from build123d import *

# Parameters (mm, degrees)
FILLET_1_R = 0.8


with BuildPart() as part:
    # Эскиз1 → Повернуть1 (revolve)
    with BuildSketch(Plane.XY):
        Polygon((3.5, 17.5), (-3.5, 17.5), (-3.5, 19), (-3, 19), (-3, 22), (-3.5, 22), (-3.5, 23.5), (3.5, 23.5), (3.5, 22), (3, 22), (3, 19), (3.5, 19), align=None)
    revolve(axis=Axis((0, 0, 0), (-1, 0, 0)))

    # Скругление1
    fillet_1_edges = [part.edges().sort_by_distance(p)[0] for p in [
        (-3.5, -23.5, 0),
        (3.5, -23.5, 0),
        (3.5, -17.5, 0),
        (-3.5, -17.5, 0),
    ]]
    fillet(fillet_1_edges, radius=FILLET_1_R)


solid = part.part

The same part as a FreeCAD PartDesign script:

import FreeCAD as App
import Part
import Sketcher
from FreeCAD import Vector
Q = App.Units.Quantity


def edges_at(feature, points):
    """Names of the edges that pass closest to the given points."""
    edges = feature.Shape.Edges
    near = lambda p: min(range(len(edges)), key=lambda i: edges[i].distToShape(Part.Vertex(*p))[0])
    return sorted({f"Edge{near(p) + 1}" for p in points})

doc = App.newDocument("Part")
body = doc.addObject("PartDesign::Body", "Body")

# Sketch on XY plane
sketch1 = doc.addObject("Sketcher::SketchObject", "Sketch")
body.addObject(sketch1)
sketch1.AttachmentSupport = (doc.XY_Plane, [""])
sketch1.MapMode = "FlatFace"
sketch1.addGeometry(Part.LineSegment(Vector(-3.5, 17.5, 0), Vector(3.5, 17.5, 0)), False)
sketch1.addGeometry(Part.LineSegment(Vector(3.5, 17.5, 0), Vector(3.5, 19, 0)), False)
sketch1.addGeometry(Part.LineSegment(Vector(3.5, 19, 0), Vector(3, 19, 0)), False)
sketch1.addGeometry(Part.LineSegment(Vector(3, 19, 0), Vector(3, 22, 0)), False)
sketch1.addGeometry(Part.LineSegment(Vector(3, 22, 0), Vector(3.5, 22, 0)), False)
sketch1.addGeometry(Part.LineSegment(Vector(3.5, 22, 0), Vector(3.5, 23.5, 0)), False)
sketch1.addGeometry(Part.LineSegment(Vector(3.5, 23.5, 0), Vector(-3.5, 23.5, 0)), False)
sketch1.addGeometry(Part.LineSegment(Vector(-3.5, 23.5, 0), Vector(-3.5, 22, 0)), False)
sketch1.addGeometry(Part.LineSegment(Vector(-3.5, 22, 0), Vector(-3, 22, 0)), False)
sketch1.addGeometry(Part.LineSegment(Vector(-3, 22, 0), Vector(-3, 19, 0)), False)
sketch1.addGeometry(Part.LineSegment(Vector(-3, 19, 0), Vector(-3.5, 19, 0)), False)
sketch1.addGeometry(Part.LineSegment(Vector(-3.5, 19, 0), Vector(-3.5, 17.5, 0)), False)
sketch1.addConstraint(Sketcher.Constraint("Coincident", 0, 2, 1, 1))
sketch1.addConstraint(Sketcher.Constraint("Coincident", 1, 2, 2, 1))
sketch1.addConstraint(Sketcher.Constraint("Coincident", 2, 2, 3, 1))
sketch1.addConstraint(Sketcher.Constraint("Coincident", 3, 2, 4, 1))
sketch1.addConstraint(Sketcher.Constraint("Coincident", 4, 2, 5, 1))
sketch1.addConstraint(Sketcher.Constraint("Coincident", 5, 2, 6, 1))
sketch1.addConstraint(Sketcher.Constraint("Coincident", 6, 2, 7, 1))
sketch1.addConstraint(Sketcher.Constraint("Coincident", 7, 2, 8, 1))
sketch1.addConstraint(Sketcher.Constraint("Coincident", 8, 2, 9, 1))
sketch1.addConstraint(Sketcher.Constraint("Coincident", 9, 2, 10, 1))
sketch1.addConstraint(Sketcher.Constraint("Coincident", 10, 2, 11, 1))
sketch1.addConstraint(Sketcher.Constraint("Coincident", 11, 2, 0, 1))
sketch1.addConstraint(Sketcher.Constraint("Horizontal", 0))
sketch1.addConstraint(Sketcher.Constraint("Vertical", 1))
sketch1.addConstraint(Sketcher.Constraint("Horizontal", 2))
sketch1.addConstraint(Sketcher.Constraint("Vertical", 3))
sketch1.addConstraint(Sketcher.Constraint("Horizontal", 4))
sketch1.addConstraint(Sketcher.Constraint("Vertical", 5))
sketch1.addConstraint(Sketcher.Constraint("Horizontal", 6))
sketch1.addConstraint(Sketcher.Constraint("Vertical", 7))
sketch1.addConstraint(Sketcher.Constraint("Horizontal", 8))
sketch1.addConstraint(Sketcher.Constraint("Vertical", 9))
sketch1.addConstraint(Sketcher.Constraint("Horizontal", 10))
sketch1.addConstraint(Sketcher.Constraint("Vertical", 11))
sketch1.addConstraint(Sketcher.Constraint("Symmetric", 4, 2, 7, 2, -2))
sketch1.addConstraint(Sketcher.Constraint("Symmetric", 2, 2, 9, 2, -2))
sketch1.addConstraint(Sketcher.Constraint("Vertical", 1, 2, 4, 2))
sketch1.addConstraint(Sketcher.Constraint("Vertical", 7, 2, 10, 2))
sketch1.addConstraint(Sketcher.Constraint("Equal", 1, 5))
sketch1.addConstraint(Sketcher.Constraint("DistanceX", 0, 1, 0, 2, Q("7 mm")))
sketch1.addConstraint(Sketcher.Constraint("DistanceY", 3, 1, 3, 2, Q("3 mm")))
sketch1.addConstraint(Sketcher.Constraint("DistanceX", 2, 2, 2, 1, Q("0.5 mm")))
sketch1.addConstraint(Sketcher.Constraint("DistanceY", 1, 1, 1, 2, Q("1.5 mm")))
sketch1.addConstraint(Sketcher.Constraint("DistanceY", -1, 1, 1, 2, Q("19 mm")))
revolution = doc.addObject("PartDesign::Revolution", "Revolution")
body.addObject(revolution)
revolution.Profile = sketch1
revolution.ReferenceAxis = (sketch1, ["H_Axis"])
revolution.Angle = 360
doc.recompute()

fillet = doc.addObject("PartDesign::Fillet", "Fillet")
body.addObject(fillet)
fillet.Base = (revolution, edges_at(revolution, [
    (-3.5, -23.5, 0),
    (3.5, -23.5, 0),
    (3.5, -17.5, 0),
    (-3.5, -17.5, 0),
]))
fillet.Radius = 0.8

doc.recompute()
